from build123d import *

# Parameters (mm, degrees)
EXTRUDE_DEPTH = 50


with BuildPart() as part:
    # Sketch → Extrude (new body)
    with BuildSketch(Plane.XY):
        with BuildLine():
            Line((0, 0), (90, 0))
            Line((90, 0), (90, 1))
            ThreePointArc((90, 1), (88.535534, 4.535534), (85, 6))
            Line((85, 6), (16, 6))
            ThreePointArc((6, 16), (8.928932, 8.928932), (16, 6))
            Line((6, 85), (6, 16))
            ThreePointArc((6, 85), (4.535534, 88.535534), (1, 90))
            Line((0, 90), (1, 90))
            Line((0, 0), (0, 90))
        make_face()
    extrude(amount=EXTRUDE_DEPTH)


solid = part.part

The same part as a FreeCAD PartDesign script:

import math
import FreeCAD as App
import Part
import Sketcher

doc = App.newDocument("Part")
body = doc.addObject("PartDesign::Body", "Body")

sketch1 = doc.addObject("Sketcher::SketchObject", "Sketch")
body.addObject(sketch1)
sketch1.AttachmentSupport = (doc.XY_Plane, [""])
sketch1.MapMode = "FlatFace"
sketch1.addGeometry([
    Part.LineSegment(App.Vector(0, 0, 0), App.Vector(90, 0, 0)),
    Part.LineSegment(App.Vector(90, 0, 0), App.Vector(90, 1, 0)),
    Part.ArcOfCircle(Part.Circle(App.Vector(85, 1, 0), App.Vector(0, 0, 1), 5), math.radians(0), math.radians(90)),
    Part.LineSegment(App.Vector(85, 6, 0), App.Vector(16, 6, 0)),
    Part.ArcOfCircle(Part.Circle(App.Vector(16, 16, 0), App.Vector(0, 0, 1), 10), math.radians(180), math.radians(270)),
    Part.LineSegment(App.Vector(6, 16, 0), App.Vector(6, 85, 0)),
    Part.ArcOfCircle(Part.Circle(App.Vector(1, 85, 0), App.Vector(0, 0, 1), 5), math.radians(0), math.radians(90)),
    Part.LineSegment(App.Vector(1, 90, 0), App.Vector(0, 90, 0)),
    Part.LineSegment(App.Vector(0, 90, 0), App.Vector(0, 0, 0)),
], False)
sketch1.addConstraint([
    Sketcher.Constraint("Coincident", 0, 2, 1, 1),
    Sketcher.Constraint("Tangent", 1, 2, 2, 1),
    Sketcher.Constraint("Tangent", 2, 2, 3, 1),
    Sketcher.Constraint("Tangent", 3, 2, 4, 2),
    Sketcher.Constraint("Tangent", 4, 1, 5, 1),
    Sketcher.Constraint("Tangent", 5, 2, 6, 1),
    Sketcher.Constraint("Tangent", 6, 2, 7, 1),
    Sketcher.Constraint("Coincident", 7, 2, 8, 1),
    Sketcher.Constraint("Coincident", 8, 2, 0, 1),
    Sketcher.Constraint("Horizontal", 0),
    Sketcher.Constraint("Vertical", 1),
    Sketcher.Constraint("Horizontal", 3),
    Sketcher.Constraint("Vertical", 5),
    Sketcher.Constraint("Horizontal", 7),
    Sketcher.Constraint("Vertical", 8),
    Sketcher.Constraint("Coincident", 8, 2, -1, 1),
    Sketcher.Constraint("Equal", 2, 6),
    Sketcher.Constraint("Equal", 7, 1),
    Sketcher.Constraint("Equal", 3, 5),
    Sketcher.Constraint("Radius", 2, 5.0),
    Sketcher.Constraint("Radius", 4, 9.999999),
    Sketcher.Constraint("DistanceX", 0, 1, 0, 2, 90.0),
    Sketcher.Constraint("DistanceX", 3, 2, 3, 1, 69.0),
])
pad1 = doc.addObject("PartDesign::Pad", "Pad")
body.addObject(pad1)
pad1.Profile = sketch1
pad1.Length = 50

doc.recompute()
